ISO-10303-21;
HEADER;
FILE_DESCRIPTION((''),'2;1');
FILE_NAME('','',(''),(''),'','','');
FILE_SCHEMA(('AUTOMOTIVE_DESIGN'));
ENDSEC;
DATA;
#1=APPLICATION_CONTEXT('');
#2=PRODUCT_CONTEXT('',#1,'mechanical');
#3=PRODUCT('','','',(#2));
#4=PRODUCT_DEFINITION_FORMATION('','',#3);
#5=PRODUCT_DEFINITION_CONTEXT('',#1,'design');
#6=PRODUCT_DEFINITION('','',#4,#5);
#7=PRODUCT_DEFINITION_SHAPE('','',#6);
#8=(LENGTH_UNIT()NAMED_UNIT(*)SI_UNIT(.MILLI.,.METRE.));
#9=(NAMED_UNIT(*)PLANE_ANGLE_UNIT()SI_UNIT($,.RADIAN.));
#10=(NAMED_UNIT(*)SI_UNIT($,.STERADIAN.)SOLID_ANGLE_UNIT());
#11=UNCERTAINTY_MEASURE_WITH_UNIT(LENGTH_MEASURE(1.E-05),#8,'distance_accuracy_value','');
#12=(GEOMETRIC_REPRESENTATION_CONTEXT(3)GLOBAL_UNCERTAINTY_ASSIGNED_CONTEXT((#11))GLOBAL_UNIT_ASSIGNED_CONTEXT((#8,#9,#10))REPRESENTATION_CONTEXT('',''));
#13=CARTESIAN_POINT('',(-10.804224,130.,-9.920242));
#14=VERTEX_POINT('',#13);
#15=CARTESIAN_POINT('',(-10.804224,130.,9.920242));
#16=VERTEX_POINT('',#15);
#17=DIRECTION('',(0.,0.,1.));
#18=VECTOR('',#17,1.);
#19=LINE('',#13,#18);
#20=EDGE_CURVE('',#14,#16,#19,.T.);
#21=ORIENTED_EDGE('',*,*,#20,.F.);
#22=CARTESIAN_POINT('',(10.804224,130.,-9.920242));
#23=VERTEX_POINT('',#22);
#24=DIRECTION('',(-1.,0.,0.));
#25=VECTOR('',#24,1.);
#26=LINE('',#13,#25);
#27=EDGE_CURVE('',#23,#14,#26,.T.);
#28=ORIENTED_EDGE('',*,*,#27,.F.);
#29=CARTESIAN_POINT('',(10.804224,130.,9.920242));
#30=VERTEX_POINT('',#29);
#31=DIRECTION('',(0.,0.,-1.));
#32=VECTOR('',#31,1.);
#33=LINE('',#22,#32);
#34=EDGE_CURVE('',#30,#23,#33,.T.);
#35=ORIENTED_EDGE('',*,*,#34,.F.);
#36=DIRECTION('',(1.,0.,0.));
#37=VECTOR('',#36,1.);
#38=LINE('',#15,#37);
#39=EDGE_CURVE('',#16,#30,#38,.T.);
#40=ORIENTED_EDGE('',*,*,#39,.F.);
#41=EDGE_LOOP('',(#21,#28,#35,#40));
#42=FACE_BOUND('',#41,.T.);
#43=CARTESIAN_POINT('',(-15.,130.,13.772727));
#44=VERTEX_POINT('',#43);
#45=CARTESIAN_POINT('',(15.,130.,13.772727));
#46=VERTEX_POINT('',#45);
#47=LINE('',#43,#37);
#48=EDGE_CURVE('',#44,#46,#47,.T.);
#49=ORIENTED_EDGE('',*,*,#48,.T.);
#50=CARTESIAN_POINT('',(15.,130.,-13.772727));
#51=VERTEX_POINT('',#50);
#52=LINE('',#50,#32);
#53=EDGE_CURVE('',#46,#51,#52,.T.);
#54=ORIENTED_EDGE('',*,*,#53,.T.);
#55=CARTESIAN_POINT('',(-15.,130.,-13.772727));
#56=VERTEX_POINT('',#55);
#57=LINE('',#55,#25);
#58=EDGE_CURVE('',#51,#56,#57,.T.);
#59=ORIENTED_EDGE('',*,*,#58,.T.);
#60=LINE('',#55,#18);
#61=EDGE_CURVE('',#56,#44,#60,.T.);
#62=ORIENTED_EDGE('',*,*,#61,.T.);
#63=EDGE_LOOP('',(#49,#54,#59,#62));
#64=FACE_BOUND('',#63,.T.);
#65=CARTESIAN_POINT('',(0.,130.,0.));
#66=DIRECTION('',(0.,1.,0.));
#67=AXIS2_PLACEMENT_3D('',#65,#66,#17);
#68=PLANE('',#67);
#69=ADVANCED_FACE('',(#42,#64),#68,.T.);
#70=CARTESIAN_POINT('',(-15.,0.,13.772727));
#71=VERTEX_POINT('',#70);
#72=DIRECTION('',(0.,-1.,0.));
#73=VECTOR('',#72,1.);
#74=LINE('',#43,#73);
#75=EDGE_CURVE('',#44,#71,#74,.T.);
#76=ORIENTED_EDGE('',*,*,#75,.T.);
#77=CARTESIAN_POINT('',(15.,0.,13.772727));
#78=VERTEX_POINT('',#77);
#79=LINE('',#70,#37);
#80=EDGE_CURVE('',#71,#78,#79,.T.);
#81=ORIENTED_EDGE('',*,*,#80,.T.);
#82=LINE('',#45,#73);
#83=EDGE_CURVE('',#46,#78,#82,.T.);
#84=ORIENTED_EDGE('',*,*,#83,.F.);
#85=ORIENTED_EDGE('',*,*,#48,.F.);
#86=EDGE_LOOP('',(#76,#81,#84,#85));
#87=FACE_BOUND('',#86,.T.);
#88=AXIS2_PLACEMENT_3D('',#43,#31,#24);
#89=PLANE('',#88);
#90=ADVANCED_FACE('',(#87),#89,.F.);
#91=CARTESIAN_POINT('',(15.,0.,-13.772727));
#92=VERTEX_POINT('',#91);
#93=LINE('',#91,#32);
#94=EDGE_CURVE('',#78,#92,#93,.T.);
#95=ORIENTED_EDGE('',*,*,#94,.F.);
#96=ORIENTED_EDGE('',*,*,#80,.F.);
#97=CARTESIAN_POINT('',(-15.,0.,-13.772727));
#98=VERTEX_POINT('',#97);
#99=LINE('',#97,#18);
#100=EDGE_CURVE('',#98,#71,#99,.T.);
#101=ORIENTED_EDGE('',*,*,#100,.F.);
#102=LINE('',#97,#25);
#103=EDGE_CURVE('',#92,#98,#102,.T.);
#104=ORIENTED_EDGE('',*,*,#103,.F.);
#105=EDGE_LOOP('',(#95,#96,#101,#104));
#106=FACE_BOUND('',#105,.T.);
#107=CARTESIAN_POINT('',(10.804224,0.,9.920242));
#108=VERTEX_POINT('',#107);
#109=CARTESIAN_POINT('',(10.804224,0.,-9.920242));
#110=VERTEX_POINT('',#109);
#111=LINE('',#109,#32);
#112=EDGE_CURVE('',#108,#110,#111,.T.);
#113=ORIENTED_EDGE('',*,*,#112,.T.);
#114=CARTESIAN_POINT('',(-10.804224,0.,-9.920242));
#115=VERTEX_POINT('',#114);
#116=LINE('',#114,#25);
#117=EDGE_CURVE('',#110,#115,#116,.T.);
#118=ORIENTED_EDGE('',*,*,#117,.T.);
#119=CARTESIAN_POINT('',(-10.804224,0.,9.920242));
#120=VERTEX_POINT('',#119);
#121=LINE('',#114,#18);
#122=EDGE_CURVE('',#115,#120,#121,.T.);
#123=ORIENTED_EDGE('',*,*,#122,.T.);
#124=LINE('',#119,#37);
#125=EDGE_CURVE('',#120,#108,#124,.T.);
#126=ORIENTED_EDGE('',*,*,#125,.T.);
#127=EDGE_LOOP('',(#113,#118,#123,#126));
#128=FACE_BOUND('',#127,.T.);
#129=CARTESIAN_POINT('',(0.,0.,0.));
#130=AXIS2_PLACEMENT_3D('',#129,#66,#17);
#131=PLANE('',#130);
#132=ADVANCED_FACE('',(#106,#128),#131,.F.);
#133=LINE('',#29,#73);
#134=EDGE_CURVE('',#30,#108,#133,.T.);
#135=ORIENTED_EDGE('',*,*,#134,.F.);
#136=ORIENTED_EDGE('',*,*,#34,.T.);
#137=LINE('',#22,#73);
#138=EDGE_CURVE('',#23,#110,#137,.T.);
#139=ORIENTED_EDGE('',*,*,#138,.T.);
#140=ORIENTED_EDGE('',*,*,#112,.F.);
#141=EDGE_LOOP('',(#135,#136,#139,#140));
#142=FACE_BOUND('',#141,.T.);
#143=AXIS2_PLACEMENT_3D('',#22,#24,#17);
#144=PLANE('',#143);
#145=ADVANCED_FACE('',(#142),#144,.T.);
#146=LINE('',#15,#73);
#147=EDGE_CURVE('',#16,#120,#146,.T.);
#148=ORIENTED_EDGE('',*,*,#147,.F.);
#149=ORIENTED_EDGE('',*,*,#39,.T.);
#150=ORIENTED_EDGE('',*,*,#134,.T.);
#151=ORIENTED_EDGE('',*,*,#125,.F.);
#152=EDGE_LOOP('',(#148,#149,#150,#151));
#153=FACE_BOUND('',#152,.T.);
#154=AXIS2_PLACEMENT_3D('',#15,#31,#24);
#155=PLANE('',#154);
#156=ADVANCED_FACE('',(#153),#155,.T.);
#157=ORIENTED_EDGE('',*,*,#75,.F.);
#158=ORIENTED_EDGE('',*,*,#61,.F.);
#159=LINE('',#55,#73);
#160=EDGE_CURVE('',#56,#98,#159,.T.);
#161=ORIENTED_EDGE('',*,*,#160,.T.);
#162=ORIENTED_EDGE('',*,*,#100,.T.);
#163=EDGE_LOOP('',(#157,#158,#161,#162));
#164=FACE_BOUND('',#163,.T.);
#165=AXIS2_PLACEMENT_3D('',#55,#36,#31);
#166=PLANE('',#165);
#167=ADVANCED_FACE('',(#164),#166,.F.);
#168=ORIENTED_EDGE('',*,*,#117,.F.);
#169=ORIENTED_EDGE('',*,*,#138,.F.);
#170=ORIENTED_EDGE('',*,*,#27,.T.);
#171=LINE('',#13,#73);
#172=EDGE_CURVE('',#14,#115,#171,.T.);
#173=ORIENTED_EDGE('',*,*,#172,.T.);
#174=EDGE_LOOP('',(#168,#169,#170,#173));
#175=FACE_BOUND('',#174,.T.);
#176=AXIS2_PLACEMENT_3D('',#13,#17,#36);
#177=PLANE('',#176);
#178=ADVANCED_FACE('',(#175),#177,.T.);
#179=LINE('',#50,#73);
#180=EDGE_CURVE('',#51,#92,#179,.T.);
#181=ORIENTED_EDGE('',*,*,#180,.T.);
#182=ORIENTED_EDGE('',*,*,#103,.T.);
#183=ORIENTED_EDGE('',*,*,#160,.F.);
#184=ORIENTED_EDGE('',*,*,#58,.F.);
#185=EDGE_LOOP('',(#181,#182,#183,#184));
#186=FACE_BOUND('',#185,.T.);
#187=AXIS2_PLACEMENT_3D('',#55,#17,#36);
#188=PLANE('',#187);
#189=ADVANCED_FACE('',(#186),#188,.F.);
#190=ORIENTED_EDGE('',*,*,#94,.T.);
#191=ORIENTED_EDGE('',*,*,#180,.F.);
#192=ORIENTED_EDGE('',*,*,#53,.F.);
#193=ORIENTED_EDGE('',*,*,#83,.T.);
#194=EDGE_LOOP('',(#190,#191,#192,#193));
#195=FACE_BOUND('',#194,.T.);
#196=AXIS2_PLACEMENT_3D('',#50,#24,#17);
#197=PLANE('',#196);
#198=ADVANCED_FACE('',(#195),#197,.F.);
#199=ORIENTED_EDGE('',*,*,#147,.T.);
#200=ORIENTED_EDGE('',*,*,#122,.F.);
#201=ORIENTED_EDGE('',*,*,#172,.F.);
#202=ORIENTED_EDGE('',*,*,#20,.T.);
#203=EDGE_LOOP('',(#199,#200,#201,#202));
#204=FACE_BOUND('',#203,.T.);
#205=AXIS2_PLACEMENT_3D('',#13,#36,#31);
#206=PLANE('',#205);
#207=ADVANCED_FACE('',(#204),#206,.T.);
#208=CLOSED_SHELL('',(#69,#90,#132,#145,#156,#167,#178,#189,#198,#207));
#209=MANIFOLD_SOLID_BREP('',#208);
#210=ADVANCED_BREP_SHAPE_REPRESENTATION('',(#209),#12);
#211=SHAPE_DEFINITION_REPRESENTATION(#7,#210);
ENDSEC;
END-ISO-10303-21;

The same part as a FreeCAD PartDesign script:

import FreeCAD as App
import Part
import Sketcher

V = App.Vector
Q = App.Units.Quantity


def add_polygon(sketch, points):
    """Adds a closed chain of lines whose ends are joined by coincident constraints."""
    first, n = sketch.GeometryCount, len(points)
    for a, b in zip(points, points[1:] + points[:1]):
        sketch.addGeometry(Part.LineSegment(App.Vector(*a, 0), App.Vector(*b, 0)), False)
    for i in range(n):
        sketch.addConstraint(Sketcher.Constraint("Coincident", first + i, 2, first + (i + 1) % n, 1))

doc = App.newDocument("Part")
body = doc.addObject("PartDesign::Body", "Body")

# Sketch on XZ plane
sketch1 = body.newObject("Sketcher::SketchObject", "Sketch")
sketch1.AttachmentSupport = (doc.getObject("XZ_Plane"), [""])
sketch1.MapMode = "FlatFace"
add_polygon(sketch1, [(-15, -14), (-15, 14), (15, 14), (15, -14)])  # lines 0-3
add_polygon(sketch1, [(11, 10), (-11, 10), (-11, -10), (11, -10)])  # lines 4-7
sketch1.addConstraint([
    Sketcher.Constraint("Vertical", 0),
    Sketcher.Constraint("Horizontal", 1),
    Sketcher.Constraint("Vertical", 2),
    Sketcher.Constraint("Horizontal", 3),
    Sketcher.Constraint("Horizontal", 4),
    Sketcher.Constraint("Vertical", 5),
    Sketcher.Constraint("Horizontal", 6),
    Sketcher.Constraint("Vertical", 7),
    Sketcher.Constraint("Symmetric", 0, 2, 2, 2, -1, 1),
    Sketcher.Constraint("Symmetric", 4, 2, 6, 2, -1, 1),
    Sketcher.Constraint("DistanceX", 1, 1, 1, 2, Q("30 mm")),
    Sketcher.Constraint("DistanceX", 4, 2, 4, 1, Q("21.608448 mm")),
    Sketcher.Constraint("DistanceY", 0, 1, 0, 2, Q("27.545455 mm")),
    Sketcher.Constraint("DistanceY", 5, 2, 5, 1, Q("19.840484 mm")),
])
pad1 = body.newObject("PartDesign::Pad", "Pad")
pad1.Profile = sketch1
pad1.Length = 130
pad1.Reversed = True

doc.recompute()
